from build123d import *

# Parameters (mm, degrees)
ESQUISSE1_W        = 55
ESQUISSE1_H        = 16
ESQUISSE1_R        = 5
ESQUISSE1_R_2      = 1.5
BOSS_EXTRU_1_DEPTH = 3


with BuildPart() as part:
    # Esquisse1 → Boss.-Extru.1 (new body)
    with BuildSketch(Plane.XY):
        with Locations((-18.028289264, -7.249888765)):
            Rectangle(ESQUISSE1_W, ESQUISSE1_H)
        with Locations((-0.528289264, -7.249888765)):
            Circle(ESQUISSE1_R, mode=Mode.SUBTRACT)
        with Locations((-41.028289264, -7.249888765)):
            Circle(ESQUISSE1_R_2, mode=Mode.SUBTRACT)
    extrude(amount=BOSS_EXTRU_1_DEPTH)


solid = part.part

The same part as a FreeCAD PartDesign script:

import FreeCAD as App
import Part
import Sketcher
from FreeCAD import Vector
Q = App.Units.Quantity

doc = App.newDocument("Part")
body = doc.addObject("PartDesign::Body", "Body")

# Sketch on XY plane
sketch1 = doc.addObject("Sketcher::SketchObject", "Sketch")
body.addObject(sketch1)
sketch1.AttachmentSupport = (doc.XY_Plane, [""])
sketch1.MapMode = "FlatFace"
sketch1.addGeometry([
    Part.LineSegment(Vector(-45.528289, 0.750111, 0), Vector(-45.528289, -15.249889, 0)),  # 0
    Part.LineSegment(Vector(-45.528289, -15.249889, 0), Vector(9.471711, -15.249889, 0)),  # 1
    Part.LineSegment(Vector(9.471711, -15.249889, 0), Vector(9.471711, 0.750111, 0)),  # 2
    Part.LineSegment(Vector(9.471711, 0.750111, 0), Vector(-45.528289, 0.750111, 0)),  # 3
    Part.Circle(Vector(-41.028289, -7.249889, 0), Vector(0, 0, 1), 1.5),  # 4
    Part.Circle(Vector(-0.528289, -7.249889, 0), Vector(0, 0, 1), 5),  # 5
], False)
sketch1.addConstraint([
    Sketcher.Constraint("Coincident", 0, 2, 1, 1),
    Sketcher.Constraint("Coincident", 1, 2, 2, 1),
    Sketcher.Constraint("Coincident", 2, 2, 3, 1),
    Sketcher.Constraint("Coincident", 3, 2, 0, 1),
    Sketcher.Constraint("Vertical", 0),
    Sketcher.Constraint("Horizontal", 1),
    Sketcher.Constraint("Vertical", 2),
    Sketcher.Constraint("Horizontal", 3),
    Sketcher.Constraint("Horizontal", 4, 3, 5, 3),
    Sketcher.Constraint("Diameter", 4, Q("3 mm")),
    Sketcher.Constraint("Diameter", 5, Q("10 mm")),
    Sketcher.Constraint("DistanceX", 1, 1, 1, 2, Q("55 mm")),
    Sketcher.Constraint("DistanceY", 0, 2, 0, 1, Q("16 mm")),
    Sketcher.Constraint("DistanceY", 0, 2, 4, 3, Q("8 mm")),
    Sketcher.Constraint("DistanceX", 0, 2, 5, 3, Q("45 mm")),
    Sketcher.Constraint("DistanceX", 4, 3, 5, 3, Q("40.5 mm")),
    Sketcher.Constraint("DistanceX", 4, 3, -1, 1, Q("41.028289 mm")),
    Sketcher.Constraint("DistanceY", 4, 3, -1, 1, Q("7.249889 mm")),
])
pad1 = doc.addObject("PartDesign::Pad", "Pad")
body.addObject(pad1)
pad1.Profile = sketch1
pad1.Length = 3

doc.recompute()
